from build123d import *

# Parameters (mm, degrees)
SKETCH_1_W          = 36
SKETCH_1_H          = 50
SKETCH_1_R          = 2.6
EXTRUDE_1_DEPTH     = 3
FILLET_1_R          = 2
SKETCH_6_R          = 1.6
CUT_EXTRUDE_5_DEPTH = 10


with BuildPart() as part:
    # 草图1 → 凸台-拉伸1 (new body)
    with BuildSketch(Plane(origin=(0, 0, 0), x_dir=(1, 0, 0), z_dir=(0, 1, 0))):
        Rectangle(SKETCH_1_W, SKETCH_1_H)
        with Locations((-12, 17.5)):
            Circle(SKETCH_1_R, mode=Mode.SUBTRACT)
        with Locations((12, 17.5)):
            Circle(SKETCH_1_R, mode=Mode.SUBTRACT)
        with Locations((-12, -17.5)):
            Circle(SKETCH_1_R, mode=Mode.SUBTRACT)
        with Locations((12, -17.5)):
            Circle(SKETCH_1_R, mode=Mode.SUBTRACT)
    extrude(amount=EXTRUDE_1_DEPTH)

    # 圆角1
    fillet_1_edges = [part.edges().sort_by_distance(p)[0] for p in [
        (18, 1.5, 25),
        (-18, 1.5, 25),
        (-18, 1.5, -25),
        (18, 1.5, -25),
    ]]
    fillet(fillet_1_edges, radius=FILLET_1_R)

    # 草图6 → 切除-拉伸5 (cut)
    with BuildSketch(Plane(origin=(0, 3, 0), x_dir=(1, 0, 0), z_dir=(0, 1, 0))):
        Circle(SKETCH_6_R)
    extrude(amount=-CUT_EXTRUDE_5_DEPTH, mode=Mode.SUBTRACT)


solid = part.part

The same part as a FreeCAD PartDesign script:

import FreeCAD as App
import Part
import Sketcher
from FreeCAD import Vector


def edges_at(feature, points):
    """Names of the edges that pass closest to the given points."""
    edges = feature.Shape.Edges
    near = lambda p: min(range(len(edges)), key=lambda i: edges[i].distToShape(Part.Vertex(*p))[0])
    return sorted({f"Edge{near(p) + 1}" for p in points})

doc = App.newDocument("Part")
body = doc.addObject("PartDesign::Body", "Body")

# Sketch on XZ plane
sketch1 = doc.addObject("Sketcher::SketchObject", "Sketch")
body.addObject(sketch1)
sketch1.AttachmentSupport = (doc.XZ_Plane, [""])
sketch1.MapMode = "FlatFace"
sketch1.addGeometry([
    Part.LineSegment(Vector(-18, -25, 0), Vector(-18, 25, 0)),  # 0
    Part.LineSegment(Vector(-18, 25, 0), Vector(18, 25, 0)),  # 1
    Part.LineSegment(Vector(18, 25, 0), Vector(18, -25, 0)),  # 2
    Part.LineSegment(Vector(18, -25, 0), Vector(-18, -25, 0)),  # 3
    Part.Circle(Vector(-12, 17.5, 0), Vector(0, 0, 1), 2.6),  # 4
    Part.Circle(Vector(12, 17.5, 0), Vector(0, 0, 1), 2.6),  # 5
    Part.Circle(Vector(-12, -17.5, 0), Vector(0, 0, 1), 2.6),  # 6
    Part.Circle(Vector(12, -17.5, 0), Vector(0, 0, 1), 2.6),  # 7
], False)
sketch1.addConstraint([
    Sketcher.Constraint("Coincident", 0, 2, 1, 1),
    Sketcher.Constraint("Coincident", 1, 2, 2, 1),
    Sketcher.Constraint("Coincident", 2, 2, 3, 1),
    Sketcher.Constraint("Coincident", 3, 2, 0, 1),
    Sketcher.Constraint("Vertical", 0),
    Sketcher.Constraint("Horizontal", 1),
    Sketcher.Constraint("Vertical", 2),
    Sketcher.Constraint("Horizontal", 3),
    Sketcher.Constraint("Equal", 4, 5),
    Sketcher.Constraint("Equal", 5, 6),
    Sketcher.Constraint("Equal", 6, 7),
    Sketcher.Constraint("Symmetric", 5, 3, 6, 3, -1, 1),
    Sketcher.Constraint("Symmetric", 4, 3, 7, 3, -1, 1),
    Sketcher.Constraint("Symmetric", 0, 2, 2, 2, -1, 1),
    Sketcher.Constraint("Symmetric", 4, 3, 5, 3, -2),
    Sketcher.Constraint("Diameter", 4, 5.2),
    Sketcher.Constraint("DistanceX", 1, 1, 1, 2, 36.0),
    Sketcher.Constraint("DistanceY", 0, 1, 0, 2, 50.0),
    Sketcher.Constraint("DistanceX", 4, 3, -1, 1, 12.0),
    Sketcher.Constraint("DistanceY", 6, 3, 4, 3, 35.0),
])
pad1 = doc.addObject("PartDesign::Pad", "Pad")
body.addObject(pad1)
pad1.Profile = sketch1
pad1.Length = 3
pad1.Reversed = True
doc.recompute()

fillet = doc.addObject("PartDesign::Fillet", "Fillet")
body.addObject(fillet)
fillet.Base = (pad1, edges_at(pad1, [
    (18, 1.5, 25),
    (-18, 1.5, 25),
    (-18, 1.5, -25),
    (18, 1.5, -25),
]))
fillet.Radius = 2

# Sketch on XZ plane
sketch2 = doc.addObject("Sketcher::SketchObject", "Sketch001")
body.addObject(sketch2)
sketch2.AttachmentSupport = (doc.XZ_Plane, [""])
sketch2.MapMode = "FlatFace"
sketch2.AttachmentOffset = App.Placement(Vector(0, 0, -3), App.Rotation())
sketch2.addGeometry(Part.Circle(Vector(0, 0, 0), Vector(0, 0, 1), 1.6), False)
sketch2.addConstraint([
    Sketcher.Constraint("Coincident", 0, 3, -1, 1),
    Sketcher.Constraint("Diameter", 0, 3.2),
])
pocket1 = doc.addObject("PartDesign::Pocket", "Pocket")
body.addObject(pocket1)
pocket1.Profile = sketch2
pocket1.Length = 10
pocket1.Reversed = True

doc.recompute()
